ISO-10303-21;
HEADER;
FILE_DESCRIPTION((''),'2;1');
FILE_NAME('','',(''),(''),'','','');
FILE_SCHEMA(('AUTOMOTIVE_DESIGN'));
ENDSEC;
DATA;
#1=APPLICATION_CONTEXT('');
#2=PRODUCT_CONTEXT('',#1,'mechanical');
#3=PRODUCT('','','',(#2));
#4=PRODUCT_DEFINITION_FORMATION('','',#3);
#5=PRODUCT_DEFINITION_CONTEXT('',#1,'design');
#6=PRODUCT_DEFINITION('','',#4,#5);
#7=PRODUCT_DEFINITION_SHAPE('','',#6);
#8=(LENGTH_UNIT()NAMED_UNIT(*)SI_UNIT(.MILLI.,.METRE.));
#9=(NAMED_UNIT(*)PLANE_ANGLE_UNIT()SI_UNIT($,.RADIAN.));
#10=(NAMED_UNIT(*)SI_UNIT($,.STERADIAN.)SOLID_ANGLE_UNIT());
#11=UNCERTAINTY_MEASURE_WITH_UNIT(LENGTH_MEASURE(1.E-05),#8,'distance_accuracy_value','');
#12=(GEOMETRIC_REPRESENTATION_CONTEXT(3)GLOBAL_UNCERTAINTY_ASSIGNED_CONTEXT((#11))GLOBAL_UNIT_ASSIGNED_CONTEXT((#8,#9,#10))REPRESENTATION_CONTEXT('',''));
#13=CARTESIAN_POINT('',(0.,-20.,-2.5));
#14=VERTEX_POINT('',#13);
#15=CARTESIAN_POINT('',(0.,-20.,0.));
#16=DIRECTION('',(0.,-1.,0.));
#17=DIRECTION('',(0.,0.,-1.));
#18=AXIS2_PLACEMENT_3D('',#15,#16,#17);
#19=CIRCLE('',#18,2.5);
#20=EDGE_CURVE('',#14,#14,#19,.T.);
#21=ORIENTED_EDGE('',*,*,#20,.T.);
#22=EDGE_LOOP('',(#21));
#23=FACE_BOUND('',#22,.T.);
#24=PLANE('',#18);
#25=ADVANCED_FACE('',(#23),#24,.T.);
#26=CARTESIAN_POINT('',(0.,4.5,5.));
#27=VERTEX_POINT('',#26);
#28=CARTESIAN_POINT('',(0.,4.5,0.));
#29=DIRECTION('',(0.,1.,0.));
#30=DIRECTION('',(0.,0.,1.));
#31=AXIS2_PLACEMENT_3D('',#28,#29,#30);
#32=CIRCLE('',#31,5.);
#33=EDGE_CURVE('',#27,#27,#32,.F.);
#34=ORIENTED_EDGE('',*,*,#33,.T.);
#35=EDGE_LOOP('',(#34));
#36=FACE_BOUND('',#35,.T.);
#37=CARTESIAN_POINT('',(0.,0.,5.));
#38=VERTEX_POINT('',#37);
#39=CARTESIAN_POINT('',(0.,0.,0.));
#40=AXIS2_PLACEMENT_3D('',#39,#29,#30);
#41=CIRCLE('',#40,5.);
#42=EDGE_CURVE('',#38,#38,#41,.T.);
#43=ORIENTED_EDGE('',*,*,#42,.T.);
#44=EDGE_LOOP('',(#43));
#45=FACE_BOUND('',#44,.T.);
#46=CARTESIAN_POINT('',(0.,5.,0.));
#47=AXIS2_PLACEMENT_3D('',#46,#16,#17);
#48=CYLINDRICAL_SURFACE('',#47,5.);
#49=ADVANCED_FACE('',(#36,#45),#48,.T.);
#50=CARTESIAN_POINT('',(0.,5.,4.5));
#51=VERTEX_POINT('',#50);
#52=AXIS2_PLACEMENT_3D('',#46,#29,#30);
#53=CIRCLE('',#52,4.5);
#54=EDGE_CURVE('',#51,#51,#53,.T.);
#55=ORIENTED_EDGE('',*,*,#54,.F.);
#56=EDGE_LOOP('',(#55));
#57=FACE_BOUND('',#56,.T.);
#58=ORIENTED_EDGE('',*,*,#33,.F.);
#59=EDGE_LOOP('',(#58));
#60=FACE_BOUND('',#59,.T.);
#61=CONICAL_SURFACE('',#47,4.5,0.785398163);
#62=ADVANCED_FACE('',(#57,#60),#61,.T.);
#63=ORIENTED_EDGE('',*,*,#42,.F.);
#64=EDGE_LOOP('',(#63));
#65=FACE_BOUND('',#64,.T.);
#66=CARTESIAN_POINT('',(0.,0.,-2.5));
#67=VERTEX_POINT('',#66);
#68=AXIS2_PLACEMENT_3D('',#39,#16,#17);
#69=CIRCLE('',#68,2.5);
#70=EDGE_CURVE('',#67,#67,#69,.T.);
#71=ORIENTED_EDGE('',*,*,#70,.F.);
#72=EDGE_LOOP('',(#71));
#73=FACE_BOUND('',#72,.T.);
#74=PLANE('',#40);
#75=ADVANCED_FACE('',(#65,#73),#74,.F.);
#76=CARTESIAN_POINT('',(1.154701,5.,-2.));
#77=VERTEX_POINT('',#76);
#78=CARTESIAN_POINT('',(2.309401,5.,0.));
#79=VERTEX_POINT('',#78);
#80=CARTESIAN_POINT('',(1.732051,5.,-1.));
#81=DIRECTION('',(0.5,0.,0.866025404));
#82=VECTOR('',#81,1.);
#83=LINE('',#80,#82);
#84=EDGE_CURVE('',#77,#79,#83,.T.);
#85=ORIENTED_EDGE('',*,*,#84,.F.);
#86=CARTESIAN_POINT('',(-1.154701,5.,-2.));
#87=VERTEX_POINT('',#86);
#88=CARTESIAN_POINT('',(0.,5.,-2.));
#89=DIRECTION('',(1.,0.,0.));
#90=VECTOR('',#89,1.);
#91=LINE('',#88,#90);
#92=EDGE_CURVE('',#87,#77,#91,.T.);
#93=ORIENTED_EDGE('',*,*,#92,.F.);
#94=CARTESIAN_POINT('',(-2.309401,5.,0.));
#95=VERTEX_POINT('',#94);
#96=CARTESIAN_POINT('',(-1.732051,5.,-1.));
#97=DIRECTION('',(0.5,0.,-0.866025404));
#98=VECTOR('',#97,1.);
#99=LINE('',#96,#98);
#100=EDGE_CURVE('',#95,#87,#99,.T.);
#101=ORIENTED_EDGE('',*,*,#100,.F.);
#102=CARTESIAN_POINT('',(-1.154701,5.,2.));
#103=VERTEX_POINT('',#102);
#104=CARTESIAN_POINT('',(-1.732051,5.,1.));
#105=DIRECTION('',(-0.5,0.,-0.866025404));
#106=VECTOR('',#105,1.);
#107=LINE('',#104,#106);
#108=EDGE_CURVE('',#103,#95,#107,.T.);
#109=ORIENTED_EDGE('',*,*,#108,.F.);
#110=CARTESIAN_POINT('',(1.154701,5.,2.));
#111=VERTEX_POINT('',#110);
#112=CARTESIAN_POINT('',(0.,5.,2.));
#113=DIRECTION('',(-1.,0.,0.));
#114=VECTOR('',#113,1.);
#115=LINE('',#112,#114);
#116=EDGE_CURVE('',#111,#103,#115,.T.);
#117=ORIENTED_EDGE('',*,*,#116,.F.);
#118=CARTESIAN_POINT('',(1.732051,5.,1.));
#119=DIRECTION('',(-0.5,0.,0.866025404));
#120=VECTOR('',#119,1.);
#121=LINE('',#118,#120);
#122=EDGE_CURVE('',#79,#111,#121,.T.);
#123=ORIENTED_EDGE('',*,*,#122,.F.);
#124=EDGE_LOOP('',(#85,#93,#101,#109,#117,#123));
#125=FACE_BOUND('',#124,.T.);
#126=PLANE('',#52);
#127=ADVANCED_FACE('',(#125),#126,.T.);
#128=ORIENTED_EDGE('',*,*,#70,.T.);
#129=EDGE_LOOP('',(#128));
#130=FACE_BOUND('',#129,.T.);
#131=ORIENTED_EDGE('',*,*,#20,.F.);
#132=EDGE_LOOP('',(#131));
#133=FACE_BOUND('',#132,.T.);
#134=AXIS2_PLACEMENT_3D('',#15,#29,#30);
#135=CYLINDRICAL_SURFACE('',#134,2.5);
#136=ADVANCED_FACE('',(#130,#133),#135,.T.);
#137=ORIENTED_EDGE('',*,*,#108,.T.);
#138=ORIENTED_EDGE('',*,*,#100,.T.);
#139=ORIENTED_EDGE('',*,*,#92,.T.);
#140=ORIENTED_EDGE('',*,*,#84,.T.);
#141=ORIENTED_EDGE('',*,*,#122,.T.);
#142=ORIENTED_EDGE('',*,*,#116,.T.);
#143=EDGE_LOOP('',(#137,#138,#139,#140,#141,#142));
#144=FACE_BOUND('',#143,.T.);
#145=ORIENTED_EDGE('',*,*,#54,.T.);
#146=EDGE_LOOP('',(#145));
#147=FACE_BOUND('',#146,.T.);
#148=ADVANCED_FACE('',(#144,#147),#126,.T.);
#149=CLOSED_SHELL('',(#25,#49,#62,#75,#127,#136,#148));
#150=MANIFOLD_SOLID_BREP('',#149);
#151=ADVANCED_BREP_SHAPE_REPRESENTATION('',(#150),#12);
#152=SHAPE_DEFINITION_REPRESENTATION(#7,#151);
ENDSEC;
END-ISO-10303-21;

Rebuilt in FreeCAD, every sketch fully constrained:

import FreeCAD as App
import Part
import Sketcher
from FreeCAD import Vector
Q = App.Units.Quantity


def edges_at(feature, points):
    """Names of the edges that pass closest to the given points."""
    edges = feature.Shape.Edges
    near = lambda p: min(range(len(edges)), key=lambda i: edges[i].distToShape(Part.Vertex(*p))[0])
    return sorted({f"Edge{near(p) + 1}" for p in points})

doc = App.newDocument("Part")
body = doc.addObject("PartDesign::Body", "Body")

# Sketch on XZ plane
sketch1 = body.newObject("Sketcher::SketchObject", "Sketch")
sketch1.AttachmentSupport = (doc.getObject("XZ_Plane"), [""])
sketch1.MapMode = "FlatFace"
sketch1.addGeometry(Part.Circle(Vector(0, 0, 0), Vector(0, 0, 1), 5), False)
sketch1.addConstraint(Sketcher.Constraint("Coincident", 0, 3, -1, 1))
sketch1.addConstraint(Sketcher.Constraint("Diameter", 0, Q("10 mm")))
pad1 = body.newObject("PartDesign::Pad", "Pad")
pad1.Profile = sketch1
pad1.Length = 5
pad1.Reversed = True

# Sketch on XZ plane
sketch2 = body.newObject("Sketcher::SketchObject", "Sketch001")
sketch2.AttachmentSupport = (doc.getObject("XZ_Plane"), [""])
sketch2.MapMode = "FlatFace"
sketch2.addGeometry(Part.Circle(Vector(0, 0, 0), Vector(0, 0, 1), 2.5), False)
sketch2.addConstraint(Sketcher.Constraint("Coincident", 0, 3, -1, 1))
sketch2.addConstraint(Sketcher.Constraint("Diameter", 0, Q("5 mm")))
pad2 = body.newObject("PartDesign::Pad", "Pad001")
pad2.Profile = sketch2
pad2.Length = 20
doc.recompute()

chamfer = body.newObject("PartDesign::Chamfer", "Chamfer")
chamfer.Base = (pad2, edges_at(pad2, [(0, 5, 5)]))
chamfer.Size = 0.5

doc.recompute()
